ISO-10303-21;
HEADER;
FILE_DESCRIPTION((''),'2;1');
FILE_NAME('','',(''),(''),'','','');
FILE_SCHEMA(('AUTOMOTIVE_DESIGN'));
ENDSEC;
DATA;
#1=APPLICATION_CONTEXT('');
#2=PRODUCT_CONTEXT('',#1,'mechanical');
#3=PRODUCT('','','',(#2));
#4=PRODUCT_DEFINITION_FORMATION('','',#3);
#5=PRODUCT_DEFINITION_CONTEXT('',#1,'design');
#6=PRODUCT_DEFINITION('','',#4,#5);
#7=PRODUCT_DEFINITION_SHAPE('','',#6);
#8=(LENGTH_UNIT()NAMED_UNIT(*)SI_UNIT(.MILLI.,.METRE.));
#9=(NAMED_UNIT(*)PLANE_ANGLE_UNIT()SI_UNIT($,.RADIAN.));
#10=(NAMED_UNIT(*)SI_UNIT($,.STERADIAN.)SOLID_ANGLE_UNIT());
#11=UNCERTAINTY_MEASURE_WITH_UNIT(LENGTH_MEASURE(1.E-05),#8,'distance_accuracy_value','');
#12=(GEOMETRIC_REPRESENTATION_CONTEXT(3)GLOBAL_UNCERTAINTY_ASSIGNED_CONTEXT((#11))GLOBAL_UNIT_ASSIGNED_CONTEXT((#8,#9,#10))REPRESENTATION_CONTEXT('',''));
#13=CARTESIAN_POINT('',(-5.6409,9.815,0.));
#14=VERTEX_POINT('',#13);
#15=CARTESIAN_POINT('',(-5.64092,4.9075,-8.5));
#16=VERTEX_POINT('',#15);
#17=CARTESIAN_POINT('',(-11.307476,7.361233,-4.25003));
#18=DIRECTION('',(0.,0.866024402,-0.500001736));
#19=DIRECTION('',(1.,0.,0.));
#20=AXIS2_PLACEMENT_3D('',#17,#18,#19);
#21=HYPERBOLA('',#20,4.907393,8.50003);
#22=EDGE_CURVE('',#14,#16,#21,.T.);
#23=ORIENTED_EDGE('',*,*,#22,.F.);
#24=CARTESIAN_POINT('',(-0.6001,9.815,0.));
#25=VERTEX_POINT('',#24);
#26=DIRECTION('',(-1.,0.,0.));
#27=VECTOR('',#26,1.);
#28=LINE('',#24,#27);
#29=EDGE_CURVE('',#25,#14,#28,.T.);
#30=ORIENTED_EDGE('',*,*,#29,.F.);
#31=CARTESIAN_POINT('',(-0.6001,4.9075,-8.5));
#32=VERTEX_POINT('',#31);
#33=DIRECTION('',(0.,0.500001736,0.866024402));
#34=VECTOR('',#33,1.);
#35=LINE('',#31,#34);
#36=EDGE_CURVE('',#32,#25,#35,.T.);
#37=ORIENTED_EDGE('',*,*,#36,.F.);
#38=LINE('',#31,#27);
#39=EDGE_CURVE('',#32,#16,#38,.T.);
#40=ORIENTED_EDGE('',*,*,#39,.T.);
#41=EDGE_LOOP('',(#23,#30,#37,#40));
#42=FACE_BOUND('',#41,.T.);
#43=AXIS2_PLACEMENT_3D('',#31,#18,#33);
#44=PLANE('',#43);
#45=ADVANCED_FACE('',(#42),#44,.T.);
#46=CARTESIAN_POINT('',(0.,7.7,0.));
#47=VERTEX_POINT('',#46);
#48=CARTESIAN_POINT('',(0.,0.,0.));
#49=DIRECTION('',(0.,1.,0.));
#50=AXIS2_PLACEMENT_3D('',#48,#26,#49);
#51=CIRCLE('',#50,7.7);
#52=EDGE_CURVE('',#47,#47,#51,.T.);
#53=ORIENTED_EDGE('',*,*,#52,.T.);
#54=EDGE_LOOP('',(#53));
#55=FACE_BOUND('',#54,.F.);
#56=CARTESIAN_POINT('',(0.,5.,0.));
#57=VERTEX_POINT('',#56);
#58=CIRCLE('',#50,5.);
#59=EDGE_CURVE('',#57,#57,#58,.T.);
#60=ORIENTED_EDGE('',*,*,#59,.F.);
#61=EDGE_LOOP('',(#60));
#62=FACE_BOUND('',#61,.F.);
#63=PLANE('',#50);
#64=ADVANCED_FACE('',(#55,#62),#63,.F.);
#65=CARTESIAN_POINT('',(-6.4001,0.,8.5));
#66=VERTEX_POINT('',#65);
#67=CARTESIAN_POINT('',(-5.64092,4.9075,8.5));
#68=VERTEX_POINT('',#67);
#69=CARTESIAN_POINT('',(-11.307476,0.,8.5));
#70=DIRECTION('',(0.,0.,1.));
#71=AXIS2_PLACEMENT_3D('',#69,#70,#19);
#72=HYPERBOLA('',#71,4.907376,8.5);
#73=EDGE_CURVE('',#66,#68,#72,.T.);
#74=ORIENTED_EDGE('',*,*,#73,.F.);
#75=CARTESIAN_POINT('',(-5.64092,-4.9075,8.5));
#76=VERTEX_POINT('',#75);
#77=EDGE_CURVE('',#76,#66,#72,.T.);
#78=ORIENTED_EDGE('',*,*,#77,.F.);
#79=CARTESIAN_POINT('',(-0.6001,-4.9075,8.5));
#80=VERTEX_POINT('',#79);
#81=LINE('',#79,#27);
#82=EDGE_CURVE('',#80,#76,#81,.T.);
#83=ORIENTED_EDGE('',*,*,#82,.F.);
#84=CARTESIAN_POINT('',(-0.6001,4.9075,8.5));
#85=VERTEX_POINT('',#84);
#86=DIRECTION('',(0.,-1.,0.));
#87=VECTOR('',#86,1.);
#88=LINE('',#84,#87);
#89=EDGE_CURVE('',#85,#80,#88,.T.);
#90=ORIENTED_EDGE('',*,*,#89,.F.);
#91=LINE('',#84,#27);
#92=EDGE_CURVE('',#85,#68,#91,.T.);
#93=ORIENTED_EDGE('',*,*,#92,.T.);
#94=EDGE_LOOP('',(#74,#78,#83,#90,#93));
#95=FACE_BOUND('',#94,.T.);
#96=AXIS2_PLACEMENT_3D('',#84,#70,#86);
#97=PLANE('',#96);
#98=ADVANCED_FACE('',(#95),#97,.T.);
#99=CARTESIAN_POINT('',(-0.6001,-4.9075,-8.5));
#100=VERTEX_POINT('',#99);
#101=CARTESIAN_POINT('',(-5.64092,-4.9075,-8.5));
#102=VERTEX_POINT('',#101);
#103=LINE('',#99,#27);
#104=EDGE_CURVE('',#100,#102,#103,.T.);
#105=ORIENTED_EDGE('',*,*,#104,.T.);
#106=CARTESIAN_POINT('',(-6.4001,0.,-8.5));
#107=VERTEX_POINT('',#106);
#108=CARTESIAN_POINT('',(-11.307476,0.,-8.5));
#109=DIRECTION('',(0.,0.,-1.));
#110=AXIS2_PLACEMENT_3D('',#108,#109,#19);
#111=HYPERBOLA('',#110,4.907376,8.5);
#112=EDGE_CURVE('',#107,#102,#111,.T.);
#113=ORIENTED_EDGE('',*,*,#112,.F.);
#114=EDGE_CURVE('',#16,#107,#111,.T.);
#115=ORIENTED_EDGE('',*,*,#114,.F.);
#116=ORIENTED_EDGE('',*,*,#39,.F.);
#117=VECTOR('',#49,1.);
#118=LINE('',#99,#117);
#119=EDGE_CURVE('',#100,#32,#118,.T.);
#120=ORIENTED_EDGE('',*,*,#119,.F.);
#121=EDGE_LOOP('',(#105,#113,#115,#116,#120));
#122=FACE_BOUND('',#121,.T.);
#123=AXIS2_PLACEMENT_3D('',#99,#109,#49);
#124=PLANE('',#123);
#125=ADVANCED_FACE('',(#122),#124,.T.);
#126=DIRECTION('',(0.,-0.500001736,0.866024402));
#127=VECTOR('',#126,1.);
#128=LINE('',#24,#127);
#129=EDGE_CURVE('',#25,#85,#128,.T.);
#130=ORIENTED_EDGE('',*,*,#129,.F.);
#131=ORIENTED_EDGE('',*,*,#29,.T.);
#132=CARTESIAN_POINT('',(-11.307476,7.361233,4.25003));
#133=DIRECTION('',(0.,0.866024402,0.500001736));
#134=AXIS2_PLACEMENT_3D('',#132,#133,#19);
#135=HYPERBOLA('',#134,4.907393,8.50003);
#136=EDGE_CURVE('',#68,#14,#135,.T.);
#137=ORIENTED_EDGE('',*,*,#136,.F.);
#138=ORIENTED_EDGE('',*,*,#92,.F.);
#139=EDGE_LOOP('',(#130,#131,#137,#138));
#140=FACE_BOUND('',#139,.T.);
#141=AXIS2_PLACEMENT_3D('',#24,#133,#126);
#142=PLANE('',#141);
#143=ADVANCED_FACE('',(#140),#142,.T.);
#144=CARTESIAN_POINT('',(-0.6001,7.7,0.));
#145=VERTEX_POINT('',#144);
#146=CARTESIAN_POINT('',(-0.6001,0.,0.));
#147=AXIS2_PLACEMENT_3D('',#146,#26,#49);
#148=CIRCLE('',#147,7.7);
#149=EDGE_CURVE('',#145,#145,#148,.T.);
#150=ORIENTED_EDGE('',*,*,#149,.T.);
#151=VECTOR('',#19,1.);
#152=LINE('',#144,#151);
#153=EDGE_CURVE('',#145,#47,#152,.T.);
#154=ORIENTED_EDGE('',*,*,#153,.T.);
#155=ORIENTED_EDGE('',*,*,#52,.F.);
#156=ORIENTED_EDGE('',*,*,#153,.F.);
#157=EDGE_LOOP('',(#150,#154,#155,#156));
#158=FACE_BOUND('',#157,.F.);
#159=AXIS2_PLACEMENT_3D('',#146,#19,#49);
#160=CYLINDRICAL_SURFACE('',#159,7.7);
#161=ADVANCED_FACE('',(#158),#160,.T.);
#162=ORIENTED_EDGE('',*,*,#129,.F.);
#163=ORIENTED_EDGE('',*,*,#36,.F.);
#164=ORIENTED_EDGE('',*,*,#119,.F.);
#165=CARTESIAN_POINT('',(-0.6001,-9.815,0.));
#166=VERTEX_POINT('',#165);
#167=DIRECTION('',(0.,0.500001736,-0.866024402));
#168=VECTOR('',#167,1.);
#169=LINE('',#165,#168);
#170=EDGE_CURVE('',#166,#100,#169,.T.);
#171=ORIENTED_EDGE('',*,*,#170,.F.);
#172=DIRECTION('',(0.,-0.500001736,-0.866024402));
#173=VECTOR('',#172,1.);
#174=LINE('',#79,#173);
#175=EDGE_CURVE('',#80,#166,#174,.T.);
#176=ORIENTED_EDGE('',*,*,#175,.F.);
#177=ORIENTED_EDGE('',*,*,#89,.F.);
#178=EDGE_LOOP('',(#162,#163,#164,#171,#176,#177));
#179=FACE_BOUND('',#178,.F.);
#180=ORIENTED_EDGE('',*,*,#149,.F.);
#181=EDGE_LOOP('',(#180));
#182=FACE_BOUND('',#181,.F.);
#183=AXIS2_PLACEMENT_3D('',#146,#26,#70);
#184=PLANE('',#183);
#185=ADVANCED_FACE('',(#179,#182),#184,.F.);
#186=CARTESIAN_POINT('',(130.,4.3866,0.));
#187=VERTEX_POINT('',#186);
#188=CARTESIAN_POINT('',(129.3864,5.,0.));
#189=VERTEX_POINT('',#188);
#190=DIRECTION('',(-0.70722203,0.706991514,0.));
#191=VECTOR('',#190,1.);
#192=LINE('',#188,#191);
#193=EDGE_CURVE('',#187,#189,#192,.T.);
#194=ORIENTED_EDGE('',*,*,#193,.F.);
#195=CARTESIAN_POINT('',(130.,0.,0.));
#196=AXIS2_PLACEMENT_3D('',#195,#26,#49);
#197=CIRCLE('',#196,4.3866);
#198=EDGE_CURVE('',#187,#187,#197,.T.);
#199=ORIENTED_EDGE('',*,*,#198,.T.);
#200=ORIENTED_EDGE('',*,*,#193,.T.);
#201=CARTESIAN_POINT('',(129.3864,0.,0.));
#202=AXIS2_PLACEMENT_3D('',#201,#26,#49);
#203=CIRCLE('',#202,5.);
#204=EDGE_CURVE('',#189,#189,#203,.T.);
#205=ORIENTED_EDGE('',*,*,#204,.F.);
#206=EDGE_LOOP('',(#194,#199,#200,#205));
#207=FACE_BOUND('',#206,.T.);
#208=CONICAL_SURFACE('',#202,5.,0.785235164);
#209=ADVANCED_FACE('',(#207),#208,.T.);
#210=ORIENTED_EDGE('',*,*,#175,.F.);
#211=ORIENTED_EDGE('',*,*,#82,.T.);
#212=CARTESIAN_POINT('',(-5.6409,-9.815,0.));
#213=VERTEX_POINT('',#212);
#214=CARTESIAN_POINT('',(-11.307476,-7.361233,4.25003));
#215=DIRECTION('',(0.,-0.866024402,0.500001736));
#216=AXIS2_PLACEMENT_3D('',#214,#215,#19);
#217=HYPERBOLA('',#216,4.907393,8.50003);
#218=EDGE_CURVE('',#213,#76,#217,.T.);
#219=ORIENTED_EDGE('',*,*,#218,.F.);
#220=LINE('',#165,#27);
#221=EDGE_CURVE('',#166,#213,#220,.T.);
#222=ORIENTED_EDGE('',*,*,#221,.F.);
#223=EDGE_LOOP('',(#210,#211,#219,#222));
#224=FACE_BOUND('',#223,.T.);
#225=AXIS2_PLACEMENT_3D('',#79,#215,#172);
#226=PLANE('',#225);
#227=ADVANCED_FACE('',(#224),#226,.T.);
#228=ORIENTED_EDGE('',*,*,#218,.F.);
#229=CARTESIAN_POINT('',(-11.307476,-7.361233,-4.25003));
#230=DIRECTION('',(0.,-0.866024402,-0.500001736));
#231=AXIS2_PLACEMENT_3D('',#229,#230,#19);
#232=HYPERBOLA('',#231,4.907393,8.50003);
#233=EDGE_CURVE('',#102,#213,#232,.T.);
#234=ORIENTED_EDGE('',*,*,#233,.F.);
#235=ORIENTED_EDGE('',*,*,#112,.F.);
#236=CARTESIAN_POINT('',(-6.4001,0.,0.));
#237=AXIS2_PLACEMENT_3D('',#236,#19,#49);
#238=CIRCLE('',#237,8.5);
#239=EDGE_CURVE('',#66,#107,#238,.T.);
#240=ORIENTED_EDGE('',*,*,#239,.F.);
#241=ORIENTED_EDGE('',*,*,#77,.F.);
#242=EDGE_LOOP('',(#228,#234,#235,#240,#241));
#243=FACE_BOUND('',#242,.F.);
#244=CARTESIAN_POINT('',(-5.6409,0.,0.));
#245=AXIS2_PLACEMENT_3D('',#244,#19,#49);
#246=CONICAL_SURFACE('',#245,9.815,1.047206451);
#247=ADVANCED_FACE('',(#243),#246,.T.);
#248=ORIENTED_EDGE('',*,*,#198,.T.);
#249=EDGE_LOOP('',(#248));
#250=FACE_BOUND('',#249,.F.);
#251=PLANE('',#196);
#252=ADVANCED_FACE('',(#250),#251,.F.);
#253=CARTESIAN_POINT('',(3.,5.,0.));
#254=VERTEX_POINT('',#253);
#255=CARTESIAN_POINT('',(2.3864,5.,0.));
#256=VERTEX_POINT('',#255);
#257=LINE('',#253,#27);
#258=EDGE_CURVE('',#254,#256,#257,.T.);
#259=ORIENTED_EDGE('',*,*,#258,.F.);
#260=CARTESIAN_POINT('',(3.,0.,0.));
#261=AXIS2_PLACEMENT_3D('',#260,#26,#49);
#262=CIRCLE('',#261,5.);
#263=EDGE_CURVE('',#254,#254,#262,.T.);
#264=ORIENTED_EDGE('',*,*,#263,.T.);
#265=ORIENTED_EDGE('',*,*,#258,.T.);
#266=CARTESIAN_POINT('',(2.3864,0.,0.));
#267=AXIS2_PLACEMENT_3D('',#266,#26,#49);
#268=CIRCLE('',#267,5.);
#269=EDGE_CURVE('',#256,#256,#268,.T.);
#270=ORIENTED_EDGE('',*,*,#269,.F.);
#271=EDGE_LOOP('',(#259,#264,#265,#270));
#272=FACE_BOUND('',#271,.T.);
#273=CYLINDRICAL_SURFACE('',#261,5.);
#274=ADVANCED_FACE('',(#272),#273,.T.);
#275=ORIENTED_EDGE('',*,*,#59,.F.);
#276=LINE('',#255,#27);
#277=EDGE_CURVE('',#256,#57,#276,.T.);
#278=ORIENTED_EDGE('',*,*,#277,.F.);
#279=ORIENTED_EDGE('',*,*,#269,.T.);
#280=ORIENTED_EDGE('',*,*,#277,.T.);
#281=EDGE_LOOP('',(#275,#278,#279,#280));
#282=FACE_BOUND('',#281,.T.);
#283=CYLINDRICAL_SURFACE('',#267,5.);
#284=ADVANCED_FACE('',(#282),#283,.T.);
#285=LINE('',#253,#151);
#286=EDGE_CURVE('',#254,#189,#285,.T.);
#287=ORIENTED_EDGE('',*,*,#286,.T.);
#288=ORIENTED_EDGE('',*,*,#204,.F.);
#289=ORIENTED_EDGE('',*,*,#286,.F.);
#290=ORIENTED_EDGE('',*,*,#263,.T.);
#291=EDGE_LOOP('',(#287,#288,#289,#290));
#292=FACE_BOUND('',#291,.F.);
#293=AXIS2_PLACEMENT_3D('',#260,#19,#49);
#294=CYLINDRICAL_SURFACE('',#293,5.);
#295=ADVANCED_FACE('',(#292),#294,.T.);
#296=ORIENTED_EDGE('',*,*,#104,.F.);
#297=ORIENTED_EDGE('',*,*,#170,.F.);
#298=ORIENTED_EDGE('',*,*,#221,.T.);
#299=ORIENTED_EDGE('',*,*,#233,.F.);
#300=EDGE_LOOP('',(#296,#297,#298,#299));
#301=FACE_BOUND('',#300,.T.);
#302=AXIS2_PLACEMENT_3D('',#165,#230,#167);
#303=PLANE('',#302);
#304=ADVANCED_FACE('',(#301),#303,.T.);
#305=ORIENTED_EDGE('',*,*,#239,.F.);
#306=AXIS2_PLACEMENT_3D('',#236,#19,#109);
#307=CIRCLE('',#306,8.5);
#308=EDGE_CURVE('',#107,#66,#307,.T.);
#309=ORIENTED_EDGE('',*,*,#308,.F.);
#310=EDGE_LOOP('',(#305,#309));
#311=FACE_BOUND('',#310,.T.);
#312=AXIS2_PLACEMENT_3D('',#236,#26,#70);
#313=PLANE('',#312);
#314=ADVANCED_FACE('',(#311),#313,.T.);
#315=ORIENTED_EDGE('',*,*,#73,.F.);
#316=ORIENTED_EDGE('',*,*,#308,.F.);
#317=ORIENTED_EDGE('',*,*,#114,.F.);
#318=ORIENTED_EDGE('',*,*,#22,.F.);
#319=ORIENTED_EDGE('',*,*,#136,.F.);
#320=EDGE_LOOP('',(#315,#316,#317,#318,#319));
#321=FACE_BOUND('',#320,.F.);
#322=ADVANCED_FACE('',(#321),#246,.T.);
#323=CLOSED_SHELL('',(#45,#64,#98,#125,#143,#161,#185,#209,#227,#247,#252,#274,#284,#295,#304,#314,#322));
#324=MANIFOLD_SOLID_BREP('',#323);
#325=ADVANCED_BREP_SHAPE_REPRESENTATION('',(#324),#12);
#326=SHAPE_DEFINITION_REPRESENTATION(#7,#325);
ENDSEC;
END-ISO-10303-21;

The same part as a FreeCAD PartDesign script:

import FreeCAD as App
import Part
import Sketcher

V = App.Vector
Q = App.Units.Quantity


def edges_at(feature, points):
    """Names of the edges that pass closest to the given points."""
    edges = feature.Shape.Edges
    near = lambda p: min(range(len(edges)), key=lambda i: edges[i].distToShape(Part.Vertex(*p))[0])
    return sorted({f"Edge{near(p) + 1}" for p in points})

doc = App.newDocument("Part")
params = doc.addObject("Spreadsheet::Sheet", "Params")
for row, (alias, value) in enumerate([
    ("sketch1_width", "130 mm"),
    ("sketch1_width2", "0.6 mm"),
    ("sketch1_height", "5 mm"),
    ("sketch1_height2", "2.7 mm"),
    ("revolution_angle", "360 deg"),
    ("pad1_length", "5.8 mm"),
    ("groove_angle", "360 deg"),
    ("chamfer_size", "0.6134 mm"),
    ("chamfer_size2", "0.6136 mm"),
], start=1):
    params.set(f"A{row}", alias)
    params.set(f"B{row}", "=" + value)
    params.setAlias(f"B{row}", alias)

body = doc.addObject("PartDesign::Body", "Body")

# Sketch on XY plane
sketch1 = body.newObject("Sketcher::SketchObject", "Sketch")
sketch1.AttachmentSupport = (doc.getObject("XY_Plane"), [""])
sketch1.MapMode = "FlatFace"
sketch1.addGeometry([
    Part.LineSegment(V(0, 5, 0), V(0, 7.7, 0)),  # 0
    Part.LineSegment(V(0, 7.7, 0), V(-0.6, 7.7, 0)),  # 1
    Part.LineSegment(V(-0.6, 7.7, 0), V(-0.6, 0, 0)),  # 2
    Part.LineSegment(V(-0.6, 0, 0), V(130, 0, 0)),  # 3
    Part.LineSegment(V(130, 0, 0), V(130, 5, 0)),  # 4
    Part.LineSegment(V(130, 5, 0), V(0, 5, 0)),  # 5
], False)
sketch1.addConstraint([
    Sketcher.Constraint("Coincident", 0, 2, 1, 1),
    Sketcher.Constraint("Coincident", 1, 2, 2, 1),
    Sketcher.Constraint("Coincident", 2, 2, 3, 1),
    Sketcher.Constraint("Coincident", 3, 2, 4, 1),
    Sketcher.Constraint("Coincident", 4, 2, 5, 1),
    Sketcher.Constraint("Coincident", 5, 2, 0, 1),
    Sketcher.Constraint("Vertical", 0),
    Sketcher.Constraint("Horizontal", 1),
    Sketcher.Constraint("Vertical", 2),
    Sketcher.Constraint("Horizontal", 3),
    Sketcher.Constraint("Vertical", 4),
    Sketcher.Constraint("Horizontal", 5),
    Sketcher.Constraint("PointOnObject", 0, 2, -2),
    Sketcher.Constraint("PointOnObject", 2, 2, -1),
    Sketcher.Constraint("DistanceX", 5, 2, 5, 1, 130.0),
    Sketcher.Constraint("DistanceX", 1, 2, 1, 1, 0.6),
    Sketcher.Constraint("DistanceY", 4, 1, 4, 2, 5.0),
    Sketcher.Constraint("DistanceY", 0, 1, 0, 2, 2.7),
])
sketch1.setExpression("Constraints[14]", "Params.sketch1_width")
sketch1.setExpression("Constraints[15]", "Params.sketch1_width2")
sketch1.setExpression("Constraints[16]", "Params.sketch1_height")
sketch1.setExpression("Constraints[17]", "Params.sketch1_height2")
revolution = body.newObject("PartDesign::Revolution", "Revolution")
revolution.Profile = sketch1
revolution.ReferenceAxis = (sketch1, ["H_Axis"])
revolution.setExpression("Angle", "Params.revolution_angle")

# Sketch on YZ plane
sketch2 = body.newObject("Sketcher::SketchObject", "Sketch001")
sketch2.AttachmentSupport = (doc.getObject("YZ_Plane"), [""])
sketch2.MapMode = "FlatFace"
sketch2.AttachmentOffset = App.Placement(V(0, 0, -0.6001), App.Rotation())
sketch2.addGeometry([
    Part.LineSegment(V(5, 8, 0), V(10, 0, 0)),  # 0
    Part.LineSegment(V(10, 0, 0), V(5, -8, 0)),  # 1
    Part.LineSegment(V(5, -8, 0), V(-5, -8, 0)),  # 2
    Part.LineSegment(V(-5, -8, 0), V(-10, 0, 0)),  # 3
    Part.LineSegment(V(-10, 0, 0), V(-5, 8, 0)),  # 4
    Part.LineSegment(V(-5, 8, 0), V(5, 8, 0)),  # 5
], False)
sketch2.addConstraint([
    Sketcher.Constraint("Coincident", 0, 2, 1, 1),
    Sketcher.Constraint("Coincident", 1, 2, 2, 1),
    Sketcher.Constraint("Coincident", 2, 2, 3, 1),
    Sketcher.Constraint("Coincident", 3, 2, 4, 1),
    Sketcher.Constraint("Coincident", 4, 2, 5, 1),
    Sketcher.Constraint("Coincident", 5, 2, 0, 1),
    Sketcher.Constraint("Horizontal", 2),
    Sketcher.Constraint("Horizontal", 5),
    Sketcher.Constraint("Symmetric", 0, 2, 3, 2, -1, 1),
    Sketcher.Constraint("Symmetric", 1, 2, 4, 2, -1, 1),
    Sketcher.Constraint("PointOnObject", 0, 2, -1),
    Sketcher.Constraint("Parallel", 0, 3),
    Sketcher.Constraint("Vertical", 2, 2, 4, 2),
    Sketcher.Constraint("DistanceY", 2, 2, 4, 2, 17.0),
    Sketcher.Constraint("Angle", 0, Q("-60 deg")),
    Sketcher.Constraint("DistanceX", 2, 2, 2, 1, 9.815),
])
pad1 = body.newObject("PartDesign::Pad", "Pad")
pad1.Profile = sketch2
pad1.setExpression("Length", "Params.pad1_length")
pad1.Reversed = True

# Sketch on XY plane
sketch3 = body.newObject("Sketcher::SketchObject", "Sketch002")
sketch3.AttachmentSupport = (doc.getObject("XY_Plane"), [""])
sketch3.MapMode = "FlatFace"
sketch3.addGeometry([
    Part.LineSegment(V(-6.4, 9.8, 0), V(-6.4, 8.5, 0)),
    Part.LineSegment(V(-6.4, 8.5, 0), V(-5.6, 9.8, 0)),
    Part.LineSegment(V(-5.6, 9.8, 0), V(-6.4, 9.8, 0)),
], False)
sketch3.addConstraint([
    Sketcher.Constraint("Coincident", 0, 2, 1, 1),
    Sketcher.Constraint("Coincident", 1, 2, 2, 1),
    Sketcher.Constraint("Coincident", 2, 2, 0, 1),
    Sketcher.Constraint("Vertical", 0),
    Sketcher.Constraint("Horizontal", 2),
    Sketcher.Constraint("Angle", 1, Q("60.0005 deg")),
    Sketcher.Constraint("DistanceX", 0, 2, -1, 1, 6.4),
    Sketcher.Constraint("DistanceY", -1, 1, 0, 2, 8.5),
    Sketcher.Constraint("DistanceY", 0, 2, 0, 1, 1.315),
])
groove = body.newObject("PartDesign::Groove", "Groove")
groove.Profile = sketch3
groove.ReferenceAxis = (sketch3, ["H_Axis"])
groove.setExpression("Angle", "Params.groove_angle")
doc.recompute()

chamfer = body.newObject("PartDesign::Chamfer", "Chamfer")
chamfer.Base = (groove, edges_at(groove, [(130, -5, 0)]))
chamfer.ChamferType = "Two distances"
chamfer.setExpression("Size", "Params.chamfer_size")
chamfer.setExpression("Size2", "Params.chamfer_size2")

doc.recompute()
